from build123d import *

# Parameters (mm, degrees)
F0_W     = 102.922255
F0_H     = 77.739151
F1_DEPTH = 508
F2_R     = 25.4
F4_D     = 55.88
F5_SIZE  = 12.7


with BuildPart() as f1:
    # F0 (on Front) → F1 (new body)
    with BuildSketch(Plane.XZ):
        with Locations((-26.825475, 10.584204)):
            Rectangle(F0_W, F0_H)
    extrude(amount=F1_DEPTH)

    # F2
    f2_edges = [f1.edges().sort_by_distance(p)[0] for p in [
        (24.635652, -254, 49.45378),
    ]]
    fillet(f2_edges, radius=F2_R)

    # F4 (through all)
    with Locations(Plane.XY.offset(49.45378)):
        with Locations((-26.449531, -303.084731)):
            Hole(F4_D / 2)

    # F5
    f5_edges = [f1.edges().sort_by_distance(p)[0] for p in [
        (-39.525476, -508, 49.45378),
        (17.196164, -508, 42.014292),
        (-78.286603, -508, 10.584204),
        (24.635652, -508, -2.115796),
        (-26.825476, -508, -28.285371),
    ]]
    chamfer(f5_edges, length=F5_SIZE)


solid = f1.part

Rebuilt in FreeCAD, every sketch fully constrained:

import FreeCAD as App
import Part
import Sketcher
from FreeCAD import Vector
Q = App.Units.Quantity


def edges_at(feature, points):
    """Names of the edges that pass closest to the given points."""
    edges = feature.Shape.Edges
    near = lambda p: min(range(len(edges)), key=lambda i: edges[i].distToShape(Part.Vertex(*p))[0])
    return sorted({f"Edge{near(p) + 1}" for p in points})

doc = App.newDocument("Part")
params = doc.addObject("Spreadsheet::Sheet", "Params")
for row, (alias, value) in enumerate([
    ("pad1_length", "20 in"),
    ("fillet_radius", "1 in"),
    ("sketch2_diameter", "2.2 in"),
    ("hole_diameter", "2.2 in"),
    ("chamfer_size", "0.5 in"),
], start=1):
    params.set(f"A{row}", alias)
    params.set(f"B{row}", "=" + value)
    params.setAlias(f"B{row}", alias)

body = doc.addObject("PartDesign::Body", "Body")

# Sketch on XZ plane
sketch1 = body.newObject("Sketcher::SketchObject", "Sketch")
sketch1.AttachmentSupport = (doc.getObject("XZ_Plane"), [""])
sketch1.MapMode = "FlatFace"
sketch1.addGeometry([
    Part.LineSegment(Vector(-78.286603, 49.45378, 0), Vector(-78.286603, -28.285372, 0)),
    Part.LineSegment(Vector(-78.286603, -28.285372, 0), Vector(24.635652, -28.285372, 0)),
    Part.LineSegment(Vector(24.635652, -28.285372, 0), Vector(24.635652, 49.45378, 0)),
    Part.LineSegment(Vector(24.635652, 49.45378, 0), Vector(-78.286603, 49.45378, 0)),
], False)
sketch1.addConstraint([
    Sketcher.Constraint("Coincident", 0, 2, 1, 1),
    Sketcher.Constraint("Coincident", 1, 2, 2, 1),
    Sketcher.Constraint("Coincident", 2, 2, 3, 1),
    Sketcher.Constraint("Coincident", 3, 2, 0, 1),
    Sketcher.Constraint("Vertical", 0),
    Sketcher.Constraint("Horizontal", 1),
    Sketcher.Constraint("Vertical", 2),
    Sketcher.Constraint("Horizontal", 3),
    Sketcher.Constraint("DistanceY", 0, 2, 0, 1, Q("77.739151 mm")),
    Sketcher.Constraint("DistanceX", 1, 1, 1, 2, Q("102.922255 mm")),
    Sketcher.Constraint("DistanceY", 0, 2, -1, 1, Q("28.285372 mm")),
    Sketcher.Constraint("DistanceX", 0, 2, -1, 1, Q("78.286603 mm")),
])
pad1 = body.newObject("PartDesign::Pad", "Pad")
pad1.Profile = sketch1
pad1.setExpression("Length", "Params.pad1_length")
doc.recompute()

fillet = body.newObject("PartDesign::Fillet", "Fillet")
fillet.Base = (pad1, edges_at(pad1, [(24.636, -254, 49.454)]))
fillet.setExpression("Radius", "Params.fillet_radius")

# Sketch on XY plane
sketch2 = body.newObject("Sketcher::SketchObject", "Sketch001")
sketch2.AttachmentSupport = (doc.getObject("XY_Plane"), [""])
sketch2.MapMode = "FlatFace"
sketch2.AttachmentOffset = App.Placement(Vector(0, 0, 49.45378), App.Rotation())
sketch2.addGeometry(Part.Circle(Vector(-26.449531, -303.084731, 0), Vector(0, 0, 1), 27.94), False)
sketch2.addConstraint([
    Sketcher.Constraint("Diameter", 0, Q("2.2 in")),
    Sketcher.Constraint("DistanceX", 0, 3, -1, 1, Q("26.449531 mm")),
    Sketcher.Constraint("DistanceY", 0, 3, -1, 1, Q("303.084731 mm")),
])
sketch2.setExpression("Constraints[0]", "Params.sketch2_diameter")
doc.recompute()
hole = body.newObject("PartDesign::Hole", "Hole")
hole.Profile = sketch2
hole.ThreadType = "None"
hole.setExpression("Diameter", "Params.hole_diameter")
hole.DepthType = "ThroughAll"
doc.recompute()

chamfer = body.newObject("PartDesign::Chamfer", "Chamfer")
chamfer.Base = (hole, edges_at(hole, [
    (-39.525, -508, 49.454),
    (17.196, -508, 42.014),
    (-78.287, -508, 10.584),
    (24.636, -508, -2.116),
    (-26.825, -508, -28.285),
]))
chamfer.setExpression("Size", "Params.chamfer_size")

doc.recompute()
